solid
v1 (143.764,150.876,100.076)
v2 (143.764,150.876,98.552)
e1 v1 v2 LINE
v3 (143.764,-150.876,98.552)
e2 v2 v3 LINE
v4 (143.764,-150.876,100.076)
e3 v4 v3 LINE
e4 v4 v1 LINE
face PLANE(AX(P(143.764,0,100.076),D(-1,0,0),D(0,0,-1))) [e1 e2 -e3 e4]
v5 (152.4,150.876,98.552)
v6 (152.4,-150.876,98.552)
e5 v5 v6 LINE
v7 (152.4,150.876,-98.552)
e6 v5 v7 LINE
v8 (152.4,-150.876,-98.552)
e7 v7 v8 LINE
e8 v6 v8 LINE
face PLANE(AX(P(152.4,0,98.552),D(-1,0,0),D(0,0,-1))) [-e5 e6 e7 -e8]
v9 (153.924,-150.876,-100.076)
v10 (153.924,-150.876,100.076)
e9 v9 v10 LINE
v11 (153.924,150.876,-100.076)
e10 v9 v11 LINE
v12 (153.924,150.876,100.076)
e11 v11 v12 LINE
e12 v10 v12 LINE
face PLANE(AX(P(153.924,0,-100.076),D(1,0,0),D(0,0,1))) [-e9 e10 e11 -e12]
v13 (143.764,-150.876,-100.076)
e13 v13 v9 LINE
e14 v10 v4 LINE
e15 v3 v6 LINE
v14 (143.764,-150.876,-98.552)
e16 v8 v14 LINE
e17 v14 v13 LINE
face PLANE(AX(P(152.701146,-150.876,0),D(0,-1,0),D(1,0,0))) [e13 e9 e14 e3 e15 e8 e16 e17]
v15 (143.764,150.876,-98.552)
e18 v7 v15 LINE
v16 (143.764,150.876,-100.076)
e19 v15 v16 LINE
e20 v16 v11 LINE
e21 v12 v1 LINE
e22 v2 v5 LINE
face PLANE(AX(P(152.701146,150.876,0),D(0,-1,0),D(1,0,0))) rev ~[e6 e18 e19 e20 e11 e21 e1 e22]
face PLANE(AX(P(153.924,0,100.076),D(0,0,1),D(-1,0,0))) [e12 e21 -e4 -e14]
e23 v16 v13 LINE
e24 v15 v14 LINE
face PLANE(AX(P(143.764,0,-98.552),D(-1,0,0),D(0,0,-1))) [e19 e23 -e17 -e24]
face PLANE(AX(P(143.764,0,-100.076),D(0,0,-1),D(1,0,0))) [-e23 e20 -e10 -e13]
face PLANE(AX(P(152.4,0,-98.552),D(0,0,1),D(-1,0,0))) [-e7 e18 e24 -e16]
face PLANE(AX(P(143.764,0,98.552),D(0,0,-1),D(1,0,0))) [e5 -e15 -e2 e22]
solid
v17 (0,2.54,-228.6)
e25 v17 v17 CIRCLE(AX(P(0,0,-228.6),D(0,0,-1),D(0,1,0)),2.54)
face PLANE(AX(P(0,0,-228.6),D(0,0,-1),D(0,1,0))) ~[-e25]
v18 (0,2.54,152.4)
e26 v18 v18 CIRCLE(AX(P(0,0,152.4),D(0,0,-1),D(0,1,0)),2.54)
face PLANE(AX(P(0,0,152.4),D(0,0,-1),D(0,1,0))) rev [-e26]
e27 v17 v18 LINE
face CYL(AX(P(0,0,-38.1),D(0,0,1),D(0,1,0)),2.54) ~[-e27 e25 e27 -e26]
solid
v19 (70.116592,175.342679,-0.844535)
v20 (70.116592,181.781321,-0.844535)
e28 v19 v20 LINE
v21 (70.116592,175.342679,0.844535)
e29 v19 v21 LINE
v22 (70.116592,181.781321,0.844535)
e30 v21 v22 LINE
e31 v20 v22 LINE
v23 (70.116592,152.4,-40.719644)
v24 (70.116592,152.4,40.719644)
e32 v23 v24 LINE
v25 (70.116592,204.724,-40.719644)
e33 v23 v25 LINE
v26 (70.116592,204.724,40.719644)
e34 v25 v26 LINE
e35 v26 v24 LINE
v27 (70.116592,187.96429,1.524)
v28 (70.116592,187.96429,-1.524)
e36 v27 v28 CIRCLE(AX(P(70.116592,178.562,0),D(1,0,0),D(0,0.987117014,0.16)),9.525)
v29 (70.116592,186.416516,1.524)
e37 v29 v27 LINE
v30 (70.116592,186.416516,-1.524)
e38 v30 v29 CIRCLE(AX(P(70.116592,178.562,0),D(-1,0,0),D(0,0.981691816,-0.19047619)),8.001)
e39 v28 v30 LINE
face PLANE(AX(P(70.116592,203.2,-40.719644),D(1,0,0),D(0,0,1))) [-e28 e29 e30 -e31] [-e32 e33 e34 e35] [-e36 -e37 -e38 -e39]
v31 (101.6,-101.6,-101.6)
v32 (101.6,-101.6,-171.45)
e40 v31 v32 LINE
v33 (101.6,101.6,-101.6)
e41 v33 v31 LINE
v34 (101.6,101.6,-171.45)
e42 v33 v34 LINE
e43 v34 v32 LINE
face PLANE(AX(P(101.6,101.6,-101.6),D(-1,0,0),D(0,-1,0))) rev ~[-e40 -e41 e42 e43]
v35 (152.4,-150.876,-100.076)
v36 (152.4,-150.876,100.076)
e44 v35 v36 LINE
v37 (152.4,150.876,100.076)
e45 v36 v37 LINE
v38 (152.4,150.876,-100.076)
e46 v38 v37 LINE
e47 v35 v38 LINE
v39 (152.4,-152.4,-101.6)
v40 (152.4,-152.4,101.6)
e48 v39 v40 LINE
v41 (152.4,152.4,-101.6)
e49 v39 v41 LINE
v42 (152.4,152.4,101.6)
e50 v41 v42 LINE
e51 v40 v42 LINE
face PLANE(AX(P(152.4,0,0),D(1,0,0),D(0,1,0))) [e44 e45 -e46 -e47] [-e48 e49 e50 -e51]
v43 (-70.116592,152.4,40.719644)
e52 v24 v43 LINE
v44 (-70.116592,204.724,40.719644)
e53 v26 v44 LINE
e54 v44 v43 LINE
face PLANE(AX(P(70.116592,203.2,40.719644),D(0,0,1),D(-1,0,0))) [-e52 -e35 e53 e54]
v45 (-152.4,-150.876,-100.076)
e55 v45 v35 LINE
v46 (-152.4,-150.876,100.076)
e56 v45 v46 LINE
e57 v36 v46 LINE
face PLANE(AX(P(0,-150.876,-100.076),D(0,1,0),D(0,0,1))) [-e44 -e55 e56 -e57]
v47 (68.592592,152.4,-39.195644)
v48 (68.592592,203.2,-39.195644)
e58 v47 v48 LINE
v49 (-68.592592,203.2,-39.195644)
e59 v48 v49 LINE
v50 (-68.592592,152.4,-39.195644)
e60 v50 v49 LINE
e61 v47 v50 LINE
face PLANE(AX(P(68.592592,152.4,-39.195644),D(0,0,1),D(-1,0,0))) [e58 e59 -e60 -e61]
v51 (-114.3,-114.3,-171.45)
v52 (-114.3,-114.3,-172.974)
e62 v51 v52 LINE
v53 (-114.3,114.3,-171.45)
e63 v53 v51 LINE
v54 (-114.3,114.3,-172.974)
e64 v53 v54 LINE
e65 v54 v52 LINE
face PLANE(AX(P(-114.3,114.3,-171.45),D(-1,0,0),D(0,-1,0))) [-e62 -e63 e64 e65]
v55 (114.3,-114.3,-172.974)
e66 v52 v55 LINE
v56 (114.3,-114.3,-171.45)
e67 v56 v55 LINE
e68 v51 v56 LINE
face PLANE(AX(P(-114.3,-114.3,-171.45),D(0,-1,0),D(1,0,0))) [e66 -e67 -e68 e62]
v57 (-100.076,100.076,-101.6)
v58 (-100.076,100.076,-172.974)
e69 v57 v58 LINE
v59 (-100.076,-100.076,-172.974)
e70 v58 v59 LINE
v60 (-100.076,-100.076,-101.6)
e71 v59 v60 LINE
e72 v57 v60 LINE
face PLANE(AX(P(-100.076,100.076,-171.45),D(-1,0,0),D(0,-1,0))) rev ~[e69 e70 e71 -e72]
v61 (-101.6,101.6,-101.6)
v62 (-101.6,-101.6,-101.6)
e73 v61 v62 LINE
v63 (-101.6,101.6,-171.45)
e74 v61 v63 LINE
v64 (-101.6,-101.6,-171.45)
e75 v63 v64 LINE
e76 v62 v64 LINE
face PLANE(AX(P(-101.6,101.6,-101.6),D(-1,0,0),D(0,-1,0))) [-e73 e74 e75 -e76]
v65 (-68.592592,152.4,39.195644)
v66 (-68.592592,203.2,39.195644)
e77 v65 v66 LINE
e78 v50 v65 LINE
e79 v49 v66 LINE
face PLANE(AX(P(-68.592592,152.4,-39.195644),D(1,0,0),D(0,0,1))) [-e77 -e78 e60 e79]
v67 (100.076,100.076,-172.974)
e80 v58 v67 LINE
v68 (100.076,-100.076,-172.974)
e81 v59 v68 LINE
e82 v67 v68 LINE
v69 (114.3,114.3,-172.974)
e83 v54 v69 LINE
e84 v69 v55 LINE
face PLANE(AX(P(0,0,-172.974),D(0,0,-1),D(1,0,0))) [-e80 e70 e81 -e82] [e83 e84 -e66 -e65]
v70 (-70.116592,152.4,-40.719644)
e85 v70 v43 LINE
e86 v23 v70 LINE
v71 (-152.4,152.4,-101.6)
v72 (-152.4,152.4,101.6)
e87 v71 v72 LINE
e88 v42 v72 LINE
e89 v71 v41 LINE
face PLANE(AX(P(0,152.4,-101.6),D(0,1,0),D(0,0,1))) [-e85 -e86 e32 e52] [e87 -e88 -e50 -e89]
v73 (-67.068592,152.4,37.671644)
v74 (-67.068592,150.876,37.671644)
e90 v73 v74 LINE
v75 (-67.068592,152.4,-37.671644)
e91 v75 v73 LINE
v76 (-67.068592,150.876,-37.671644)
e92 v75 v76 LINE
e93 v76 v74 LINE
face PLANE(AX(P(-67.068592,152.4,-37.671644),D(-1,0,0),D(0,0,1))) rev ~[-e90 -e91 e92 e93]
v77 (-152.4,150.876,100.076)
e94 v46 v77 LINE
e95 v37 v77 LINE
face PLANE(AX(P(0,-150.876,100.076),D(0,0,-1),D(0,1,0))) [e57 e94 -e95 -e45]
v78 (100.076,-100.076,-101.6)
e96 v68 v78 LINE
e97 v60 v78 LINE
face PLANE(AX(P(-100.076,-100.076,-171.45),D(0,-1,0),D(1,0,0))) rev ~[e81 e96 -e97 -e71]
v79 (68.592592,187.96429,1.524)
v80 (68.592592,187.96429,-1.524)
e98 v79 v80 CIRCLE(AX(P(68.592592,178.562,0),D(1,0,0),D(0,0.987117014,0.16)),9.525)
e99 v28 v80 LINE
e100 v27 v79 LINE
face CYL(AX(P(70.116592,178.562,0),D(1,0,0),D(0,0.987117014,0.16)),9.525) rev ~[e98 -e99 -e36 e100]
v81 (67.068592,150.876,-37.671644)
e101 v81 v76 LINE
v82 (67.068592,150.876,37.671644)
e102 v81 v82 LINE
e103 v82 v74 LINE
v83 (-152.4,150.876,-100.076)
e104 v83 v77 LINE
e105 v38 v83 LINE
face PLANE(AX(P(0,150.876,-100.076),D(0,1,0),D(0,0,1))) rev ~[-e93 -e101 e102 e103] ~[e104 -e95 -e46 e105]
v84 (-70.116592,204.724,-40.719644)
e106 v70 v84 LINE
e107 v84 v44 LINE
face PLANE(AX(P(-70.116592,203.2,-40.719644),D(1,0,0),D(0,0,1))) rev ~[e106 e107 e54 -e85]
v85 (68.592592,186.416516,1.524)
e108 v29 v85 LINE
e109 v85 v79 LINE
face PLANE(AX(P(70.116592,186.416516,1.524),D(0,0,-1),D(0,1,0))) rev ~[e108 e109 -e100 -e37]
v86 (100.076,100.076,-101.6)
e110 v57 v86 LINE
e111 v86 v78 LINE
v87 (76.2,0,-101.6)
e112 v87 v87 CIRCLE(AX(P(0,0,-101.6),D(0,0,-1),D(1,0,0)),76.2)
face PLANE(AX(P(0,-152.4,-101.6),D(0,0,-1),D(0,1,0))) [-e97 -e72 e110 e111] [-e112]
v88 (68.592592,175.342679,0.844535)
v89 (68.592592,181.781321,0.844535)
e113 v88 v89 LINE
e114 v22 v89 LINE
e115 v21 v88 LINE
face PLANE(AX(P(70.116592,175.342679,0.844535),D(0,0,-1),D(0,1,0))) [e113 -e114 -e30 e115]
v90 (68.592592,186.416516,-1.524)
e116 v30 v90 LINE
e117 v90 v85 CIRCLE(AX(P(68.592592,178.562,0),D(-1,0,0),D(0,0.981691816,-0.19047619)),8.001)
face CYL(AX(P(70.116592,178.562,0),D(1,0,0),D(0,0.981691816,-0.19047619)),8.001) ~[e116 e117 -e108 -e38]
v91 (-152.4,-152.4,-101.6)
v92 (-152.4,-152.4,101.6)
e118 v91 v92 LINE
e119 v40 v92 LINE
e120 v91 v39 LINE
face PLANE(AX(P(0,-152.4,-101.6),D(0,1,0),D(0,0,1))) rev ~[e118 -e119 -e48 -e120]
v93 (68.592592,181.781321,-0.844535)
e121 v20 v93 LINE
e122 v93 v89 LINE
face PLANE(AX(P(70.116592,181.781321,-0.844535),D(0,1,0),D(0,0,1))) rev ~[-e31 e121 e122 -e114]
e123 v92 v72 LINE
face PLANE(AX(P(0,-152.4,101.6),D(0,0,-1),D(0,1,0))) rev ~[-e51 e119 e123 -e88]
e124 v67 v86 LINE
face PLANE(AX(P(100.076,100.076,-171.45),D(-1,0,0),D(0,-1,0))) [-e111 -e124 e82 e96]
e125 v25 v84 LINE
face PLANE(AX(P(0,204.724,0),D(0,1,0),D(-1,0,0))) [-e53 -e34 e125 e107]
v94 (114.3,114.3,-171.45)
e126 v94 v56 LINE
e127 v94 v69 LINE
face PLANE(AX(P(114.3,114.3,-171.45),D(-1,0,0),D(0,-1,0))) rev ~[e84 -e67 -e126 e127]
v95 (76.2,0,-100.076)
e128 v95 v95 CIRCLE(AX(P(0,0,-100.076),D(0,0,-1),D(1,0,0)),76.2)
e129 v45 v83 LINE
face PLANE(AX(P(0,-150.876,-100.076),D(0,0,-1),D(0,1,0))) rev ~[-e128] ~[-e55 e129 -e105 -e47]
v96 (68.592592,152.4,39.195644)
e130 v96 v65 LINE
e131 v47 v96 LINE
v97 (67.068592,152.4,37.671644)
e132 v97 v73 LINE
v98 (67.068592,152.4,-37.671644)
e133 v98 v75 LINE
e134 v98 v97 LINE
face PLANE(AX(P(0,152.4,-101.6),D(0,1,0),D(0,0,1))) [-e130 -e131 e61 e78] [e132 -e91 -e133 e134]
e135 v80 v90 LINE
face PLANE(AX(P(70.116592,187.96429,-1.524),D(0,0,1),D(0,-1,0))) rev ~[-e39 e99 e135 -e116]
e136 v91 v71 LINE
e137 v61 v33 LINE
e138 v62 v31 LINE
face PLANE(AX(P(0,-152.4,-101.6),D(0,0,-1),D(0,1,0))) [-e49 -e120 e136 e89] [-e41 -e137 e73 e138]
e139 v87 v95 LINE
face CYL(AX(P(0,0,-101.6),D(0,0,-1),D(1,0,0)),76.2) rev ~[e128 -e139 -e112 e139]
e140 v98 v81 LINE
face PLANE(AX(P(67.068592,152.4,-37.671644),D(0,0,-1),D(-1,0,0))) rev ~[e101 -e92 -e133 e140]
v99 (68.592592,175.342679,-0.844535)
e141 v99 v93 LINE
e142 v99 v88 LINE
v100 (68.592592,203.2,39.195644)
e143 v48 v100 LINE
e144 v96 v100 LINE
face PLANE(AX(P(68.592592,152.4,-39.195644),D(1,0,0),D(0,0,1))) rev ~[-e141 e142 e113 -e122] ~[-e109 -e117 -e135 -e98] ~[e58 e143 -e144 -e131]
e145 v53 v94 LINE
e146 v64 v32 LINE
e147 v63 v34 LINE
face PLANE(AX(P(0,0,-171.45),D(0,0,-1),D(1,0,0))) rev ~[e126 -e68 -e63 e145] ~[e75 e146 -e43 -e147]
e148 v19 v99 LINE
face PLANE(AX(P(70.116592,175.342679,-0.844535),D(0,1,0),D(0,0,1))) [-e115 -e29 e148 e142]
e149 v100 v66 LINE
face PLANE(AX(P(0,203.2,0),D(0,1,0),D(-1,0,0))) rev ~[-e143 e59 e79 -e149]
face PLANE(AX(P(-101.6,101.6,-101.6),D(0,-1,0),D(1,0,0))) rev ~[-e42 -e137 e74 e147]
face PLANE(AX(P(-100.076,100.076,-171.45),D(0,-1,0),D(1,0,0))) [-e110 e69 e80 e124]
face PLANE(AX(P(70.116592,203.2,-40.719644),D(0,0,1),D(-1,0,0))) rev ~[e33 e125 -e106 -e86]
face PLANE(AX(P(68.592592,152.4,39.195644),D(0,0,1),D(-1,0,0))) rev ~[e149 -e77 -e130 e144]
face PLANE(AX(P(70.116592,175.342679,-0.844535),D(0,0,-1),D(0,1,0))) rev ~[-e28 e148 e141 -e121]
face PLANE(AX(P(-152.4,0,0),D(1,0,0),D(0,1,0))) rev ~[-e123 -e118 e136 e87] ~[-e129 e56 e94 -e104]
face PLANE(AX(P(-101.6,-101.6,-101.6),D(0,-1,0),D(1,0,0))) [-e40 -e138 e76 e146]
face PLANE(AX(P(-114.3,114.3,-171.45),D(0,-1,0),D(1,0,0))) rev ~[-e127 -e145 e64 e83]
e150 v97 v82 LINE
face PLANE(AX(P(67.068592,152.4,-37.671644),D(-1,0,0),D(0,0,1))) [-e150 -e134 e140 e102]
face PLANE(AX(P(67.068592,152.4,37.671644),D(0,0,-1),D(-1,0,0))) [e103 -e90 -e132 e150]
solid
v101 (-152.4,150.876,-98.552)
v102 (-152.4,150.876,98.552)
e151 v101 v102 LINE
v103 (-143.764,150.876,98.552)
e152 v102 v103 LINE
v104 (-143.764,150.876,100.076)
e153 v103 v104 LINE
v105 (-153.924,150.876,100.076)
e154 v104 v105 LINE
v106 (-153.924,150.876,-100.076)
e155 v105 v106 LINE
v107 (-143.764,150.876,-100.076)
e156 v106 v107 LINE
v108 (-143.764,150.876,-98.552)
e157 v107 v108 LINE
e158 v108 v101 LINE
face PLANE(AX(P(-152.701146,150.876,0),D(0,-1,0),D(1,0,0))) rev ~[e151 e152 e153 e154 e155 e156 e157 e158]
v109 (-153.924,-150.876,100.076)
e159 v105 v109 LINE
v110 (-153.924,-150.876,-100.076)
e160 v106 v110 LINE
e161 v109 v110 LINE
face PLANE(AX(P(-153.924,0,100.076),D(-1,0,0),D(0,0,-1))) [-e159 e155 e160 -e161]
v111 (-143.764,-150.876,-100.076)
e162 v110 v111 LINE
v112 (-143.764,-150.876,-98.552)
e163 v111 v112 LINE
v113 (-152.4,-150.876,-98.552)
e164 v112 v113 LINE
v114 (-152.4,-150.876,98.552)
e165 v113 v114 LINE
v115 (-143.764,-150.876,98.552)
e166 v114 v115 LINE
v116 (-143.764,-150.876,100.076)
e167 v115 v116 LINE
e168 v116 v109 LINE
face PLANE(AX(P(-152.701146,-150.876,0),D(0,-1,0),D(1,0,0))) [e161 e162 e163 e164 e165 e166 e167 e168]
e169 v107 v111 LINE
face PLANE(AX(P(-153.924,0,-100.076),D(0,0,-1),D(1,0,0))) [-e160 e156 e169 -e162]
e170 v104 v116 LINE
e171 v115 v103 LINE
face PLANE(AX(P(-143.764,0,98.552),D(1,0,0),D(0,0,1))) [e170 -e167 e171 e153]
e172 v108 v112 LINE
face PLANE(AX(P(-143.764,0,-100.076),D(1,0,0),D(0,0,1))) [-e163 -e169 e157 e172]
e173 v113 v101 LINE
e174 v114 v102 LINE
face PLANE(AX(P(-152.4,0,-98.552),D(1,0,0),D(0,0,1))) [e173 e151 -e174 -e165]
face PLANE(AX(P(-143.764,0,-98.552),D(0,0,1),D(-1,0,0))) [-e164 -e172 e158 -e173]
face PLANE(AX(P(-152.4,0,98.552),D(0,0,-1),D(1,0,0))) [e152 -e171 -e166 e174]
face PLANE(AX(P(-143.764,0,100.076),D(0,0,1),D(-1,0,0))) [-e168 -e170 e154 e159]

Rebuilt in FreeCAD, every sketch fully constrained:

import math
import FreeCAD as App
import Part
import Sketcher
Q = App.Units.Quantity

doc = App.newDocument("Part")
params = doc.addObject("Spreadsheet::Sheet", "Params")
for row, (alias, value) in enumerate([
    ("sketch1_width", "12 in"),
    ("sketch1_height", "8 in"),
    ("sketch1_width2", "11.88 in"),
    ("sketch1_height2", "7.88 in"),
    ("pad1_length", "12 in"),
    ("sketch2_diameter", "6 in"),
    ("pocket1_length", "0.06 in"),
    ("sketch3_width", "8 in"),
    ("sketch3_width2", "7.88 in"),
    ("pad2_length", "2.75 in"),
    ("sketch4_width", "9 in"),
    ("sketch4_width2", "7.88 in"),
    ("pad3_length", "0.06 in"),
    ("pocket2_length", "0.06 in"),
    ("pad4_length", "2 in"),
    ("pad5_length", "0.06 in"),
    ("sketch8_radius", "0.375 in"),
    ("sketch8_radius2", "0.315 in"),
    ("pocket3_length", "0.06 in"),
    ("sketch9_width", "0.4 in"),
    ("sketch9_width2", "0.34 in"),
    ("sketch9_height", "0.06 in"),
    ("sketch9_height2", "7.88 in"),
    ("pad6_length", "11.88 in"),
    ("sketch10_width", "0.4 in"),
    ("sketch10_width2", "0.34 in"),
    ("sketch10_height", "0.06 in"),
    ("sketch10_height2", "7.76 in"),
    ("pad7_length", "11.88 in"),
    ("sketch11_height", "15 in"),
    ("sketch11_width", "0.1 in"),
    ("revolution_angle", "360 deg"),
], start=1):
    params.set(f"A{row}", alias)
    params.set(f"B{row}", "=" + value)
    params.setAlias(f"B{row}", alias)

body = doc.addObject("PartDesign::Body", "Body")

# Sketch on YZ plane
sketch1 = body.newObject("Sketcher::SketchObject", "Sketch")
sketch1.AttachmentSupport = (doc.getObject("YZ_Plane"), [""])
sketch1.MapMode = "FlatFace"
sketch1.addGeometry(Part.LineSegment(App.Vector(-152.4, 101.6, 0), App.Vector(-152.4, -101.6, 0)), False)
sketch1.addGeometry(Part.LineSegment(App.Vector(-152.4, -101.6, 0), App.Vector(152.4, -101.6, 0)), False)
sketch1.addGeometry(Part.LineSegment(App.Vector(152.4, -101.6, 0), App.Vector(152.4, 101.6, 0)), False)
sketch1.addGeometry(Part.LineSegment(App.Vector(152.4, 101.6, 0), App.Vector(-152.4, 101.6, 0)), False)
sketch1.addGeometry(Part.LineSegment(App.Vector(150.876, -100.076, 0), App.Vector(-150.876, -100.076, 0)), False)
sketch1.addGeometry(Part.LineSegment(App.Vector(-150.876, -100.076, 0), App.Vector(-150.876, 100.076, 0)), False)
sketch1.addGeometry(Part.LineSegment(App.Vector(-150.876, 100.076, 0), App.Vector(150.876, 100.076, 0)), False)
sketch1.addGeometry(Part.LineSegment(App.Vector(150.876, 100.076, 0), App.Vector(150.876, -100.076, 0)), False)
sketch1.addConstraint(Sketcher.Constraint("Coincident", 0, 2, 1, 1))
sketch1.addConstraint(Sketcher.Constraint("Coincident", 1, 2, 2, 1))
sketch1.addConstraint(Sketcher.Constraint("Coincident", 2, 2, 3, 1))
sketch1.addConstraint(Sketcher.Constraint("Coincident", 3, 2, 0, 1))
sketch1.addConstraint(Sketcher.Constraint("Coincident", 4, 2, 5, 1))
sketch1.addConstraint(Sketcher.Constraint("Coincident", 5, 2, 6, 1))
sketch1.addConstraint(Sketcher.Constraint("Coincident", 6, 2, 7, 1))
sketch1.addConstraint(Sketcher.Constraint("Coincident", 7, 2, 4, 1))
sketch1.addConstraint(Sketcher.Constraint("Vertical", 0))
sketch1.addConstraint(Sketcher.Constraint("Horizontal", 1))
sketch1.addConstraint(Sketcher.Constraint("Vertical", 2))
sketch1.addConstraint(Sketcher.Constraint("Horizontal", 3))
sketch1.addConstraint(Sketcher.Constraint("Horizontal", 4))
sketch1.addConstraint(Sketcher.Constraint("Vertical", 5))
sketch1.addConstraint(Sketcher.Constraint("Horizontal", 6))
sketch1.addConstraint(Sketcher.Constraint("Vertical", 7))
sketch1.addConstraint(Sketcher.Constraint("Symmetric", 0, 2, 2, 2, -1, 1))
sketch1.addConstraint(Sketcher.Constraint("Symmetric", 4, 2, 6, 2, -1, 1))
sketch1.addConstraint(Sketcher.Constraint("DistanceX", 1, 1, 1, 2, Q("12 in")))
sketch1.addConstraint(Sketcher.Constraint("DistanceY", 0, 2, 0, 1, Q("8 in")))
sketch1.addConstraint(Sketcher.Constraint("DistanceX", 4, 2, 4, 1, Q("11.88 in")))
sketch1.addConstraint(Sketcher.Constraint("DistanceY", 5, 1, 5, 2, Q("7.88 in")))
sketch1.setExpression("Constraints[18]", "Params.sketch1_width")
sketch1.setExpression("Constraints[19]", "Params.sketch1_height")
sketch1.setExpression("Constraints[20]", "Params.sketch1_width2")
sketch1.setExpression("Constraints[21]", "Params.sketch1_height2")
pad1 = body.newObject("PartDesign::Pad", "Pad")
pad1.Profile = sketch1
pad1.setExpression("Length", "Params.pad1_length")
pad1.Midplane = True

# Sketch on XY plane
sketch2 = body.newObject("Sketcher::SketchObject", "Sketch001")
sketch2.AttachmentSupport = (doc.getObject("XY_Plane"), [""])
sketch2.MapMode = "FlatFace"
sketch2.AttachmentOffset = App.Placement(App.Vector(0, 0, -4 * 25.4), App.Rotation())
sketch2.addGeometry(Part.Circle(App.Vector(0, 0, 0), App.Vector(0, 0, 1), 76.2), False)
sketch2.addConstraint(Sketcher.Constraint("Coincident", 0, 3, -1, 1))
sketch2.addConstraint(Sketcher.Constraint("Diameter", 0, Q("6 in")))
sketch2.setExpression("Constraints[1]", "Params.sketch2_diameter")
pocket1 = body.newObject("PartDesign::Pocket", "Pocket")
pocket1.Profile = sketch2
pocket1.setExpression("Length", "Params.pocket1_length")
pocket1.Reversed = True

# Sketch on XY plane
sketch3 = body.newObject("Sketcher::SketchObject", "Sketch002")
sketch3.AttachmentSupport = (doc.getObject("XY_Plane"), [""])
sketch3.MapMode = "FlatFace"
sketch3.AttachmentOffset = App.Placement(App.Vector(0, 0, -4 * 25.4), App.Rotation())
sketch3.addGeometry(Part.LineSegment(App.Vector(-101.6, -101.6, 0), App.Vector(-101.6, 101.6, 0)), False)
sketch3.addGeometry(Part.LineSegment(App.Vector(-101.6, 101.6, 0), App.Vector(101.6, 101.6, 0)), False)
sketch3.addGeometry(Part.LineSegment(App.Vector(101.6, 101.6, 0), App.Vector(101.6, -101.6, 0)), False)
sketch3.addGeometry(Part.LineSegment(App.Vector(101.6, -101.6, 0), App.Vector(-101.6, -101.6, 0)), False)
sketch3.addGeometry(Part.LineSegment(App.Vector(100.076, 100.076, 0), App.Vector(-100.076, 100.076, 0)), False)
sketch3.addGeometry(Part.LineSegment(App.Vector(-100.076, 100.076, 0), App.Vector(-100.076, -100.076, 0)), False)
sketch3.addGeometry(Part.LineSegment(App.Vector(-100.076, -100.076, 0), App.Vector(100.076, -100.076, 0)), False)
sketch3.addGeometry(Part.LineSegment(App.Vector(100.076, -100.076, 0), App.Vector(100.076, 100.076, 0)), False)
sketch3.addConstraint(Sketcher.Constraint("Coincident", 0, 2, 1, 1))
sketch3.addConstraint(Sketcher.Constraint("Coincident", 1, 2, 2, 1))
sketch3.addConstraint(Sketcher.Constraint("Coincident", 2, 2, 3, 1))
sketch3.addConstraint(Sketcher.Constraint("Coincident", 3, 2, 0, 1))
sketch3.addConstraint(Sketcher.Constraint("Coincident", 4, 2, 5, 1))
sketch3.addConstraint(Sketcher.Constraint("Coincident", 5, 2, 6, 1))
sketch3.addConstraint(Sketcher.Constraint("Coincident", 6, 2, 7, 1))
sketch3.addConstraint(Sketcher.Constraint("Coincident", 7, 2, 4, 1))
sketch3.addConstraint(Sketcher.Constraint("Vertical", 0))
sketch3.addConstraint(Sketcher.Constraint("Horizontal", 1))
sketch3.addConstraint(Sketcher.Constraint("Vertical", 2))
sketch3.addConstraint(Sketcher.Constraint("Horizontal", 3))
sketch3.addConstraint(Sketcher.Constraint("Horizontal", 4))
sketch3.addConstraint(Sketcher.Constraint("Vertical", 5))
sketch3.addConstraint(Sketcher.Constraint("Horizontal", 6))
sketch3.addConstraint(Sketcher.Constraint("Vertical", 7))
sketch3.addConstraint(Sketcher.Constraint("Symmetric", 0, 2, 2, 2, -1, 1))
sketch3.addConstraint(Sketcher.Constraint("Symmetric", 4, 2, 6, 2, -1, 1))
sketch3.addConstraint(Sketcher.Constraint("Equal", 3, 0))
sketch3.addConstraint(Sketcher.Constraint("Equal", 6, 5))
sketch3.addConstraint(Sketcher.Constraint("DistanceX", 1, 1, 1, 2, Q("8 in")))
sketch3.addConstraint(Sketcher.Constraint("DistanceX", 4, 2, 4, 1, Q("7.88 in")))
sketch3.setExpression("Constraints[20]", "Params.sketch3_width")
sketch3.setExpression("Constraints[21]", "Params.sketch3_width2")
pad2 = body.newObject("PartDesign::Pad", "Pad001")
pad2.Profile = sketch3
pad2.setExpression("Length", "Params.pad2_length")
pad2.Reversed = True

# Sketch on XY plane
sketch4 = body.newObject("Sketcher::SketchObject", "Sketch003")
sketch4.AttachmentSupport = (doc.getObject("XY_Plane"), [""])
sketch4.MapMode = "FlatFace"
sketch4.AttachmentOffset = App.Placement(App.Vector(0, 0, -6.75 * 25.4), App.Rotation())
sketch4.addGeometry(Part.LineSegment(App.Vector(-114.3, -114.3, 0), App.Vector(-114.3, 114.3, 0)), False)
sketch4.addGeometry(Part.LineSegment(App.Vector(-114.3, 114.3, 0), App.Vector(114.3, 114.3, 0)), False)
sketch4.addGeometry(Part.LineSegment(App.Vector(114.3, 114.3, 0), App.Vector(114.3, -114.3, 0)), False)
sketch4.addGeometry(Part.LineSegment(App.Vector(114.3, -114.3, 0), App.Vector(-114.3, -114.3, 0)), False)
sketch4.addGeometry(Part.LineSegment(App.Vector(100.076, 100.076, 0), App.Vector(-100.076, 100.076, 0)), False)
sketch4.addGeometry(Part.LineSegment(App.Vector(-100.076, 100.076, 0), App.Vector(-100.076, -100.076, 0)), False)
sketch4.addGeometry(Part.LineSegment(App.Vector(-100.076, -100.076, 0), App.Vector(100.076, -100.076, 0)), False)
sketch4.addGeometry(Part.LineSegment(App.Vector(100.076, -100.076, 0), App.Vector(100.076, 100.076, 0)), False)
sketch4.addConstraint(Sketcher.Constraint("Coincident", 0, 2, 1, 1))
sketch4.addConstraint(Sketcher.Constraint("Coincident", 1, 2, 2, 1))
sketch4.addConstraint(Sketcher.Constraint("Coincident", 2, 2, 3, 1))
sketch4.addConstraint(Sketcher.Constraint("Coincident", 3, 2, 0, 1))
sketch4.addConstraint(Sketcher.Constraint("Coincident", 4, 2, 5, 1))
sketch4.addConstraint(Sketcher.Constraint("Coincident", 5, 2, 6, 1))
sketch4.addConstraint(Sketcher.Constraint("Coincident", 6, 2, 7, 1))
sketch4.addConstraint(Sketcher.Constraint("Coincident", 7, 2, 4, 1))
sketch4.addConstraint(Sketcher.Constraint("Vertical", 0))
sketch4.addConstraint(Sketcher.Constraint("Horizontal", 1))
sketch4.addConstraint(Sketcher.Constraint("Vertical", 2))
sketch4.addConstraint(Sketcher.Constraint("Horizontal", 3))
sketch4.addConstraint(Sketcher.Constraint("Horizontal", 4))
sketch4.addConstraint(Sketcher.Constraint("Vertical", 5))
sketch4.addConstraint(Sketcher.Constraint("Horizontal", 6))
sketch4.addConstraint(Sketcher.Constraint("Vertical", 7))
sketch4.addConstraint(Sketcher.Constraint("Symmetric", 0, 2, 2, 2, -1, 1))
sketch4.addConstraint(Sketcher.Constraint("Symmetric", 4, 2, 6, 2, -1, 1))
sketch4.addConstraint(Sketcher.Constraint("Equal", 3, 0))
sketch4.addConstraint(Sketcher.Constraint("Equal", 6, 5))
sketch4.addConstraint(Sketcher.Constraint("DistanceX", 1, 1, 1, 2, Q("9 in")))
sketch4.addConstraint(Sketcher.Constraint("DistanceX", 4, 2, 4, 1, Q("7.88 in")))
sketch4.setExpression("Constraints[20]", "Params.sketch4_width")
sketch4.setExpression("Constraints[21]", "Params.sketch4_width2")
pad3 = body.newObject("PartDesign::Pad", "Pad002")
pad3.Profile = sketch4
pad3.setExpression("Length", "Params.pad3_length")
pad3.Reversed = True

# Sketch on XZ plane
sketch5 = body.newObject("Sketcher::SketchObject", "Sketch004")
sketch5.AttachmentSupport = (doc.getObject("XZ_Plane"), [""])
sketch5.MapMode = "FlatFace"
sketch5.AttachmentOffset = App.Placement(App.Vector(0, 0, -6 * 25.4), App.Rotation())
sketch5.addGeometry(Part.LineSegment(App.Vector(67.068592, 37.671644, 0), App.Vector(67.068592, -37.671644, 0)), False)
sketch5.addGeometry(Part.LineSegment(App.Vector(67.068592, -37.671644, 0), App.Vector(-67.068592, -37.671644, 0)), False)
sketch5.addGeometry(Part.LineSegment(App.Vector(-67.068592, -37.671644, 0), App.Vector(-67.068592, 37.671644, 0)), False)
sketch5.addGeometry(Part.LineSegment(App.Vector(-67.068592, 37.671644, 0), App.Vector(67.068592, 37.671644, 0)), False)
sketch5.addConstraint(Sketcher.Constraint("Coincident", 0, 2, 1, 1))
sketch5.addConstraint(Sketcher.Constraint("Coincident", 1, 2, 2, 1))
sketch5.addConstraint(Sketcher.Constraint("Coincident", 2, 2, 3, 1))
sketch5.addConstraint(Sketcher.Constraint("Coincident", 3, 2, 0, 1))
sketch5.addConstraint(Sketcher.Constraint("Vertical", 0))
sketch5.addConstraint(Sketcher.Constraint("Horizontal", 1))
sketch5.addConstraint(Sketcher.Constraint("Vertical", 2))
sketch5.addConstraint(Sketcher.Constraint("Horizontal", 3))
sketch5.addConstraint(Sketcher.Constraint("Symmetric", 0, 2, 2, 2, -1, 1))
sketch5.addConstraint(Sketcher.Constraint("DistanceY", 0, 2, 0, 1, 75.343288))
sketch5.addConstraint(Sketcher.Constraint("DistanceX", 1, 2, 1, 1, 134.137183))
pocket2 = body.newObject("PartDesign::Pocket", "Pocket001")
pocket2.Profile = sketch5
pocket2.setExpression("Length", "Params.pocket2_length")
pocket2.Reversed = True

# Sketch on XZ plane
sketch6 = body.newObject("Sketcher::SketchObject", "Sketch005")
sketch6.AttachmentSupport = (doc.getObject("XZ_Plane"), [""])
sketch6.MapMode = "FlatFace"
sketch6.AttachmentOffset = App.Placement(App.Vector(0, 0, -6 * 25.4), App.Rotation())
sketch6.addGeometry(Part.LineSegment(App.Vector(70.116592, 40.719644, 0), App.Vector(70.116592, -40.719644, 0)), False)
sketch6.addGeometry(Part.LineSegment(App.Vector(70.116592, -40.719644, 0), App.Vector(-70.116592, -40.719644, 0)), False)
sketch6.addGeometry(Part.LineSegment(App.Vector(-70.116592, -40.719644, 0), App.Vector(-70.116592, 40.719644, 0)), False)
sketch6.addGeometry(Part.LineSegment(App.Vector(-70.116592, 40.719644, 0), App.Vector(70.116592, 40.719644, 0)), False)
sketch6.addGeometry(Part.LineSegment(App.Vector(-68.592592, -39.195644, 0), App.Vector(68.592592, -39.195644, 0)), False)
sketch6.addGeometry(Part.LineSegment(App.Vector(68.592592, -39.195644, 0), App.Vector(68.592592, 39.195644, 0)), False)
sketch6.addGeometry(Part.LineSegment(App.Vector(68.592592, 39.195644, 0), App.Vector(-68.592592, 39.195644, 0)), False)
sketch6.addGeometry(Part.LineSegment(App.Vector(-68.592592, 39.195644, 0), App.Vector(-68.592592, -39.195644, 0)), False)
sketch6.addConstraint(Sketcher.Constraint("Coincident", 0, 2, 1, 1))
sketch6.addConstraint(Sketcher.Constraint("Coincident", 1, 2, 2, 1))
sketch6.addConstraint(Sketcher.Constraint("Coincident", 2, 2, 3, 1))
sketch6.addConstraint(Sketcher.Constraint("Coincident", 3, 2, 0, 1))
sketch6.addConstraint(Sketcher.Constraint("Coincident", 4, 2, 5, 1))
sketch6.addConstraint(Sketcher.Constraint("Coincident", 5, 2, 6, 1))
sketch6.addConstraint(Sketcher.Constraint("Coincident", 6, 2, 7, 1))
sketch6.addConstraint(Sketcher.Constraint("Coincident", 7, 2, 4, 1))
sketch6.addConstraint(Sketcher.Constraint("Vertical", 0))
sketch6.addConstraint(Sketcher.Constraint("Horizontal", 1))
sketch6.addConstraint(Sketcher.Constraint("Vertical", 2))
sketch6.addConstraint(Sketcher.Constraint("Horizontal", 3))
sketch6.addConstraint(Sketcher.Constraint("Horizontal", 4))
sketch6.addConstraint(Sketcher.Constraint("Vertical", 5))
sketch6.addConstraint(Sketcher.Constraint("Horizontal", 6))
sketch6.addConstraint(Sketcher.Constraint("Vertical", 7))
sketch6.addConstraint(Sketcher.Constraint("Symmetric", 0, 2, 2, 2, -1, 1))
sketch6.addConstraint(Sketcher.Constraint("Symmetric", 4, 2, 6, 2, -1, 1))
sketch6.addConstraint(Sketcher.Constraint("DistanceX", 4, 2, 0, 2, Q("0.06 in")))
sketch6.addConstraint(Sketcher.Constraint("DistanceY", 0, 2, 4, 2, Q("0.06 in")))
sketch6.addConstraint(Sketcher.Constraint("DistanceY", 0, 2, 0, 1, 81.439288))
sketch6.addConstraint(Sketcher.Constraint("DistanceX", 1, 2, 1, 1, 140.233183))
pad4 = body.newObject("PartDesign::Pad", "Pad003")
pad4.Profile = sketch6
pad4.setExpression("Length", "Params.pad4_length")
pad4.Reversed = True

# Sketch on XZ plane
sketch7 = body.newObject("Sketcher::SketchObject", "Sketch006")
sketch7.AttachmentSupport = (doc.getObject("XZ_Plane"), [""])
sketch7.MapMode = "FlatFace"
sketch7.AttachmentOffset = App.Placement(App.Vector(0, 0, -8 * 25.4), App.Rotation())
sketch7.addGeometry(Part.LineSegment(App.Vector(70.116592, 40.719644, 0), App.Vector(70.116592, -40.719644, 0)), False)
sketch7.addGeometry(Part.LineSegment(App.Vector(70.116592, -40.719644, 0), App.Vector(-70.116592, -40.719644, 0)), False)
sketch7.addGeometry(Part.LineSegment(App.Vector(-70.116592, -40.719644, 0), App.Vector(-70.116592, 40.719644, 0)), False)
sketch7.addGeometry(Part.LineSegment(App.Vector(-70.116592, 40.719644, 0), App.Vector(70.116592, 40.719644, 0)), False)
sketch7.addConstraint(Sketcher.Constraint("Coincident", 0, 2, 1, 1))
sketch7.addConstraint(Sketcher.Constraint("Coincident", 1, 2, 2, 1))
sketch7.addConstraint(Sketcher.Constraint("Coincident", 2, 2, 3, 1))
sketch7.addConstraint(Sketcher.Constraint("Coincident", 3, 2, 0, 1))
sketch7.addConstraint(Sketcher.Constraint("Vertical", 0))
sketch7.addConstraint(Sketcher.Constraint("Horizontal", 1))
sketch7.addConstraint(Sketcher.Constraint("Vertical", 2))
sketch7.addConstraint(Sketcher.Constraint("Horizontal", 3))
sketch7.addConstraint(Sketcher.Constraint("Symmetric", 0, 2, 2, 2, -1, 1))
sketch7.addConstraint(Sketcher.Constraint("DistanceY", 0, 2, 0, 1, 81.439288))
sketch7.addConstraint(Sketcher.Constraint("DistanceX", 1, 2, 1, 1, 140.233183))
pad5 = body.newObject("PartDesign::Pad", "Pad004")
pad5.Profile = sketch7
pad5.setExpression("Length", "Params.pad5_length")
pad5.Reversed = True

# Sketch on YZ plane
sketch8 = body.newObject("Sketcher::SketchObject", "Sketch007")
sketch8.AttachmentSupport = (doc.getObject("YZ_Plane"), [""])
sketch8.MapMode = "FlatFace"
sketch8.AttachmentOffset = App.Placement(App.Vector(0, 0, 70.116592), App.Rotation())
sketch8.addGeometry(Part.LineSegment(App.Vector(186.416516, 1.524, 0), App.Vector(187.96429, 1.524, 0)), False)
sketch8.addGeometry(Part.ArcOfCircle(Part.Circle(App.Vector(178.562, 0, 0), App.Vector(0, 0, 1), 9.525), math.radians(9.206896), math.radians(350.793104)), False)
sketch8.addGeometry(Part.LineSegment(App.Vector(187.96429, -1.524, 0), App.Vector(186.416516, -1.524, 0)), False)
sketch8.addGeometry(Part.ArcOfCircle(Part.Circle(App.Vector(178.562, 0, 0), App.Vector(0, 0, 1), 8.001), math.radians(10.980575), math.radians(349.019425)), False)
sketch8.addGeometry(Part.LineSegment(App.Vector(175.342679, 0.844535, 0), App.Vector(175.342679, -0.844535, 0)), False)
sketch8.addGeometry(Part.LineSegment(App.Vector(175.342679, -0.844535, 0), App.Vector(181.781321, -0.844535, 0)), False)
sketch8.addGeometry(Part.LineSegment(App.Vector(181.781321, -0.844535, 0), App.Vector(181.781321, 0.844535, 0)), False)
sketch8.addGeometry(Part.LineSegment(App.Vector(181.781321, 0.844535, 0), App.Vector(175.342679, 0.844535, 0)), False)
sketch8.addConstraint(Sketcher.Constraint("Coincident", 0, 2, 1, 1))
sketch8.addConstraint(Sketcher.Constraint("Coincident", 1, 2, 2, 1))
sketch8.addConstraint(Sketcher.Constraint("Coincident", 2, 2, 3, 2))
sketch8.addConstraint(Sketcher.Constraint("Coincident", 3, 1, 0, 1))
sketch8.addConstraint(Sketcher.Constraint("Coincident", 4, 2, 5, 1))
sketch8.addConstraint(Sketcher.Constraint("Coincident", 5, 2, 6, 1))
sketch8.addConstraint(Sketcher.Constraint("Coincident", 6, 2, 7, 1))
sketch8.addConstraint(Sketcher.Constraint("Coincident", 7, 2, 4, 1))
sketch8.addConstraint(Sketcher.Constraint("Horizontal", 0))
sketch8.addConstraint(Sketcher.Constraint("Horizontal", 2))
sketch8.addConstraint(Sketcher.Constraint("Vertical", 4))
sketch8.addConstraint(Sketcher.Constraint("Horizontal", 5))
sketch8.addConstraint(Sketcher.Constraint("Vertical", 6))
sketch8.addConstraint(Sketcher.Constraint("Horizontal", 7))
sketch8.addConstraint(Sketcher.Constraint("Coincident", 3, 3, 1, 3))
sketch8.addConstraint(Sketcher.Constraint("Symmetric", 0, 2, 1, 2, -1))
sketch8.addConstraint(Sketcher.Constraint("Radius", 1, Q("0.375 in")))
sketch8.addConstraint(Sketcher.Constraint("Radius", 3, Q("0.315 in")))
sketch8.addConstraint(Sketcher.Constraint("DistanceX", -1, 1, 1, 3, Q("7.03 in")))
sketch8.addConstraint(Sketcher.Constraint("DistanceY", -1, 1, 0, 2, Q("0.06 in")))
sketch8.addConstraint(Sketcher.Constraint("DistanceX", 5, 1, 5, 2, 6.438642))
sketch8.addConstraint(Sketcher.Constraint("DistanceY", 4, 2, 4, 1, 1.68907))
sketch8.addConstraint(Sketcher.Constraint("DistanceX", -1, 1, 4, 2, 175.342679))
sketch8.addConstraint(Sketcher.Constraint("DistanceY", 4, 2, -1, 1, 0.844535))
sketch8.setExpression("Constraints[16]", "Params.sketch8_radius")
sketch8.setExpression("Constraints[17]", "Params.sketch8_radius2")
pocket3 = body.newObject("PartDesign::Pocket", "Pocket002")
pocket3.Profile = sketch8
pocket3.setExpression("Length", "Params.pocket3_length")
body2 = doc.addObject("PartDesign::Body", "Body001")

# Sketch on XZ plane
sketch9 = body2.newObject("Sketcher::SketchObject", "Sketch008")
sketch9.AttachmentSupport = (doc.getObject("XZ_Plane001"), [""])
sketch9.MapMode = "FlatFace"
sketch9.addGeometry(Part.LineSegment(App.Vector(-143.764, 98.552, 0), App.Vector(-143.764, 100.076, 0)), False)
sketch9.addGeometry(Part.LineSegment(App.Vector(-143.764, 100.076, 0), App.Vector(-153.924, 100.076, 0)), False)
sketch9.addGeometry(Part.LineSegment(App.Vector(-153.924, 100.076, 0), App.Vector(-153.924, -100.076, 0)), False)
sketch9.addGeometry(Part.LineSegment(App.Vector(-153.924, -100.076, 0), App.Vector(-143.764, -100.076, 0)), False)
sketch9.addGeometry(Part.LineSegment(App.Vector(-143.764, -100.076, 0), App.Vector(-143.764, -98.552, 0)), False)
sketch9.addGeometry(Part.LineSegment(App.Vector(-143.764, -98.552, 0), App.Vector(-152.4, -98.552, 0)), False)
sketch9.addGeometry(Part.LineSegment(App.Vector(-152.4, -98.552, 0), App.Vector(-152.4, 98.552, 0)), False)
sketch9.addGeometry(Part.LineSegment(App.Vector(-152.4, 98.552, 0), App.Vector(-143.764, 98.552, 0)), False)
sketch9.addConstraint(Sketcher.Constraint("Coincident", 0, 2, 1, 1))
sketch9.addConstraint(Sketcher.Constraint("Coincident", 1, 2, 2, 1))
sketch9.addConstraint(Sketcher.Constraint("Coincident", 2, 2, 3, 1))
sketch9.addConstraint(Sketcher.Constraint("Coincident", 3, 2, 4, 1))
sketch9.addConstraint(Sketcher.Constraint("Coincident", 4, 2, 5, 1))
sketch9.addConstraint(Sketcher.Constraint("Coincident", 5, 2, 6, 1))
sketch9.addConstraint(Sketcher.Constraint("Coincident", 6, 2, 7, 1))
sketch9.addConstraint(Sketcher.Constraint("Coincident", 7, 2, 0, 1))
sketch9.addConstraint(Sketcher.Constraint("Vertical", 0))
sketch9.addConstraint(Sketcher.Constraint("Horizontal", 1))
sketch9.addConstraint(Sketcher.Constraint("Vertical", 2))
sketch9.addConstraint(Sketcher.Constraint("Horizontal", 3))
sketch9.addConstraint(Sketcher.Constraint("Vertical", 4))
sketch9.addConstraint(Sketcher.Constraint("Horizontal", 5))
sketch9.addConstraint(Sketcher.Constraint("Vertical", 6))
sketch9.addConstraint(Sketcher.Constraint("Horizontal", 7))
sketch9.addConstraint(Sketcher.Constraint("Symmetric", 0, 2, 3, 2, -1))
sketch9.addConstraint(Sketcher.Constraint("Equal", 0, 4))
sketch9.addConstraint(Sketcher.Constraint("DistanceX", 1, 2, 1, 1, Q("0.4 in")))
sketch9.addConstraint(Sketcher.Constraint("DistanceX", 5, 2, -1, 1, Q("6 in")))
sketch9.addConstraint(Sketcher.Constraint("DistanceX", 5, 2, 5, 1, Q("0.34 in")))
sketch9.addConstraint(Sketcher.Constraint("DistanceY", 0, 1, 0, 2, Q("0.06 in")))
sketch9.addConstraint(Sketcher.Constraint("DistanceY", 2, 2, 2, 1, Q("7.88 in")))
sketch9.setExpression("Constraints[18]", "Params.sketch9_width")
sketch9.setExpression("Constraints[20]", "Params.sketch9_width2")
sketch9.setExpression("Constraints[21]", "Params.sketch9_height")
sketch9.setExpression("Constraints[22]", "Params.sketch9_height2")
pad6 = body2.newObject("PartDesign::Pad", "Pad005")
pad6.Profile = sketch9
pad6.setExpression("Length", "Params.pad6_length")
pad6.Midplane = True
body3 = doc.addObject("PartDesign::Body", "Body002")

# Sketch on XZ plane
sketch10 = body3.newObject("Sketcher::SketchObject", "Sketch009")
sketch10.AttachmentSupport = (doc.getObject("XZ_Plane002"), [""])
sketch10.MapMode = "FlatFace"
sketch10.addGeometry(Part.LineSegment(App.Vector(143.764, 100.076, 0), App.Vector(143.764, 98.552, 0)), False)
sketch10.addGeometry(Part.LineSegment(App.Vector(143.764, 98.552, 0), App.Vector(152.4, 98.552, 0)), False)
sketch10.addGeometry(Part.LineSegment(App.Vector(152.4, 98.552, 0), App.Vector(152.4, -98.552, 0)), False)
sketch10.addGeometry(Part.LineSegment(App.Vector(152.4, -98.552, 0), App.Vector(143.764, -98.552, 0)), False)
sketch10.addGeometry(Part.LineSegment(App.Vector(143.764, -98.552, 0), App.Vector(143.764, -100.076, 0)), False)
sketch10.addGeometry(Part.LineSegment(App.Vector(143.764, -100.076, 0), App.Vector(153.924, -100.076, 0)), False)
sketch10.addGeometry(Part.LineSegment(App.Vector(153.924, -100.076, 0), App.Vector(153.924, 100.076, 0)), False)
sketch10.addGeometry(Part.LineSegment(App.Vector(153.924, 100.076, 0), App.Vector(143.764, 100.076, 0)), False)
sketch10.addConstraint(Sketcher.Constraint("Coincident", 0, 2, 1, 1))
sketch10.addConstraint(Sketcher.Constraint("Coincident", 1, 2, 2, 1))
sketch10.addConstraint(Sketcher.Constraint("Coincident", 2, 2, 3, 1))
sketch10.addConstraint(Sketcher.Constraint("Coincident", 3, 2, 4, 1))
sketch10.addConstraint(Sketcher.Constraint("Coincident", 4, 2, 5, 1))
sketch10.addConstraint(Sketcher.Constraint("Coincident", 5, 2, 6, 1))
sketch10.addConstraint(Sketcher.Constraint("Coincident", 6, 2, 7, 1))
sketch10.addConstraint(Sketcher.Constraint("Coincident", 7, 2, 0, 1))
sketch10.addConstraint(Sketcher.Constraint("Vertical", 0))
sketch10.addConstraint(Sketcher.Constraint("Horizontal", 1))
sketch10.addConstraint(Sketcher.Constraint("Vertical", 2))
sketch10.addConstraint(Sketcher.Constraint("Horizontal", 3))
sketch10.addConstraint(Sketcher.Constraint("Vertical", 4))
sketch10.addConstraint(Sketcher.Constraint("Horizontal", 5))
sketch10.addConstraint(Sketcher.Constraint("Vertical", 6))
sketch10.addConstraint(Sketcher.Constraint("Horizontal", 7))
sketch10.addConstraint(Sketcher.Constraint("Symmetric", 0, 2, 3, 2, -1))
sketch10.addConstraint(Sketcher.Constraint("Equal", 0, 4))
sketch10.addConstraint(Sketcher.Constraint("DistanceX", 5, 1, 5, 2, Q("0.4 in")))
sketch10.addConstraint(Sketcher.Constraint("DistanceX", -1, 1, 1, 2, Q("6 in")))
sketch10.addConstraint(Sketcher.Constraint("DistanceX", 1, 1, 1, 2, Q("0.34 in")))
sketch10.addConstraint(Sketcher.Constraint("DistanceY", 0, 2, 0, 1, Q("0.06 in")))
sketch10.addConstraint(Sketcher.Constraint("DistanceY", 2, 2, 2, 1, Q("7.76 in")))
sketch10.setExpression("Constraints[18]", "Params.sketch10_width")
sketch10.setExpression("Constraints[20]", "Params.sketch10_width2")
sketch10.setExpression("Constraints[21]", "Params.sketch10_height")
sketch10.setExpression("Constraints[22]", "Params.sketch10_height2")
pad7 = body3.newObject("PartDesign::Pad", "Pad006")
pad7.Profile = sketch10
pad7.setExpression("Length", "Params.pad7_length")
pad7.Midplane = True
body4 = doc.addObject("PartDesign::Body", "Body003")

# Sketch on YZ plane
sketch11 = body4.newObject("Sketcher::SketchObject", "Sketch010")
sketch11.AttachmentSupport = (doc.getObject("YZ_Plane003"), [""])
sketch11.MapMode = "FlatFace"
sketch11.addGeometry(Part.LineSegment(App.Vector(0, 152.4, 0), App.Vector(0, -228.6, 0)), False)
sketch11.addGeometry(Part.LineSegment(App.Vector(0, -228.6, 0), App.Vector(2.54, -228.6, 0)), False)
sketch11.addGeometry(Part.LineSegment(App.Vector(2.54, -228.6, 0), App.Vector(2.54, 152.4, 0)), False)
sketch11.addGeometry(Part.LineSegment(App.Vector(2.54, 152.4, 0), App.Vector(0, 152.4, 0)), False)
sketch11.addConstraint(Sketcher.Constraint("Coincident", 0, 2, 1, 1))
sketch11.addConstraint(Sketcher.Constraint("Coincident", 1, 2, 2, 1))
sketch11.addConstraint(Sketcher.Constraint("Coincident", 2, 2, 3, 1))
sketch11.addConstraint(Sketcher.Constraint("Coincident", 3, 2, 0, 1))
sketch11.addConstraint(Sketcher.Constraint("Vertical", 0))
sketch11.addConstraint(Sketcher.Constraint("Horizontal", 1))
sketch11.addConstraint(Sketcher.Constraint("Vertical", 2))
sketch11.addConstraint(Sketcher.Constraint("Horizontal", 3))
sketch11.addConstraint(Sketcher.Constraint("PointOnObject", 0, 2, -2))
sketch11.addConstraint(Sketcher.Constraint("DistanceY", 0, 2, 0, 1, Q("15 in")))
sketch11.addConstraint(Sketcher.Constraint("DistanceX", 1, 1, 1, 2, Q("0.1 in")))
sketch11.addConstraint(Sketcher.Constraint("DistanceY", 0, 2, -1, 1, Q("9 in")))
sketch11.setExpression("Constraints[9]", "Params.sketch11_height")
sketch11.setExpression("Constraints[10]", "Params.sketch11_width")
revolution = body4.newObject("PartDesign::Revolution", "Revolution")
revolution.Profile = sketch11
revolution.ReferenceAxis = (sketch11, ["V_Axis"])
revolution.setExpression("Angle", "Params.revolution_angle")

doc.recompute()
